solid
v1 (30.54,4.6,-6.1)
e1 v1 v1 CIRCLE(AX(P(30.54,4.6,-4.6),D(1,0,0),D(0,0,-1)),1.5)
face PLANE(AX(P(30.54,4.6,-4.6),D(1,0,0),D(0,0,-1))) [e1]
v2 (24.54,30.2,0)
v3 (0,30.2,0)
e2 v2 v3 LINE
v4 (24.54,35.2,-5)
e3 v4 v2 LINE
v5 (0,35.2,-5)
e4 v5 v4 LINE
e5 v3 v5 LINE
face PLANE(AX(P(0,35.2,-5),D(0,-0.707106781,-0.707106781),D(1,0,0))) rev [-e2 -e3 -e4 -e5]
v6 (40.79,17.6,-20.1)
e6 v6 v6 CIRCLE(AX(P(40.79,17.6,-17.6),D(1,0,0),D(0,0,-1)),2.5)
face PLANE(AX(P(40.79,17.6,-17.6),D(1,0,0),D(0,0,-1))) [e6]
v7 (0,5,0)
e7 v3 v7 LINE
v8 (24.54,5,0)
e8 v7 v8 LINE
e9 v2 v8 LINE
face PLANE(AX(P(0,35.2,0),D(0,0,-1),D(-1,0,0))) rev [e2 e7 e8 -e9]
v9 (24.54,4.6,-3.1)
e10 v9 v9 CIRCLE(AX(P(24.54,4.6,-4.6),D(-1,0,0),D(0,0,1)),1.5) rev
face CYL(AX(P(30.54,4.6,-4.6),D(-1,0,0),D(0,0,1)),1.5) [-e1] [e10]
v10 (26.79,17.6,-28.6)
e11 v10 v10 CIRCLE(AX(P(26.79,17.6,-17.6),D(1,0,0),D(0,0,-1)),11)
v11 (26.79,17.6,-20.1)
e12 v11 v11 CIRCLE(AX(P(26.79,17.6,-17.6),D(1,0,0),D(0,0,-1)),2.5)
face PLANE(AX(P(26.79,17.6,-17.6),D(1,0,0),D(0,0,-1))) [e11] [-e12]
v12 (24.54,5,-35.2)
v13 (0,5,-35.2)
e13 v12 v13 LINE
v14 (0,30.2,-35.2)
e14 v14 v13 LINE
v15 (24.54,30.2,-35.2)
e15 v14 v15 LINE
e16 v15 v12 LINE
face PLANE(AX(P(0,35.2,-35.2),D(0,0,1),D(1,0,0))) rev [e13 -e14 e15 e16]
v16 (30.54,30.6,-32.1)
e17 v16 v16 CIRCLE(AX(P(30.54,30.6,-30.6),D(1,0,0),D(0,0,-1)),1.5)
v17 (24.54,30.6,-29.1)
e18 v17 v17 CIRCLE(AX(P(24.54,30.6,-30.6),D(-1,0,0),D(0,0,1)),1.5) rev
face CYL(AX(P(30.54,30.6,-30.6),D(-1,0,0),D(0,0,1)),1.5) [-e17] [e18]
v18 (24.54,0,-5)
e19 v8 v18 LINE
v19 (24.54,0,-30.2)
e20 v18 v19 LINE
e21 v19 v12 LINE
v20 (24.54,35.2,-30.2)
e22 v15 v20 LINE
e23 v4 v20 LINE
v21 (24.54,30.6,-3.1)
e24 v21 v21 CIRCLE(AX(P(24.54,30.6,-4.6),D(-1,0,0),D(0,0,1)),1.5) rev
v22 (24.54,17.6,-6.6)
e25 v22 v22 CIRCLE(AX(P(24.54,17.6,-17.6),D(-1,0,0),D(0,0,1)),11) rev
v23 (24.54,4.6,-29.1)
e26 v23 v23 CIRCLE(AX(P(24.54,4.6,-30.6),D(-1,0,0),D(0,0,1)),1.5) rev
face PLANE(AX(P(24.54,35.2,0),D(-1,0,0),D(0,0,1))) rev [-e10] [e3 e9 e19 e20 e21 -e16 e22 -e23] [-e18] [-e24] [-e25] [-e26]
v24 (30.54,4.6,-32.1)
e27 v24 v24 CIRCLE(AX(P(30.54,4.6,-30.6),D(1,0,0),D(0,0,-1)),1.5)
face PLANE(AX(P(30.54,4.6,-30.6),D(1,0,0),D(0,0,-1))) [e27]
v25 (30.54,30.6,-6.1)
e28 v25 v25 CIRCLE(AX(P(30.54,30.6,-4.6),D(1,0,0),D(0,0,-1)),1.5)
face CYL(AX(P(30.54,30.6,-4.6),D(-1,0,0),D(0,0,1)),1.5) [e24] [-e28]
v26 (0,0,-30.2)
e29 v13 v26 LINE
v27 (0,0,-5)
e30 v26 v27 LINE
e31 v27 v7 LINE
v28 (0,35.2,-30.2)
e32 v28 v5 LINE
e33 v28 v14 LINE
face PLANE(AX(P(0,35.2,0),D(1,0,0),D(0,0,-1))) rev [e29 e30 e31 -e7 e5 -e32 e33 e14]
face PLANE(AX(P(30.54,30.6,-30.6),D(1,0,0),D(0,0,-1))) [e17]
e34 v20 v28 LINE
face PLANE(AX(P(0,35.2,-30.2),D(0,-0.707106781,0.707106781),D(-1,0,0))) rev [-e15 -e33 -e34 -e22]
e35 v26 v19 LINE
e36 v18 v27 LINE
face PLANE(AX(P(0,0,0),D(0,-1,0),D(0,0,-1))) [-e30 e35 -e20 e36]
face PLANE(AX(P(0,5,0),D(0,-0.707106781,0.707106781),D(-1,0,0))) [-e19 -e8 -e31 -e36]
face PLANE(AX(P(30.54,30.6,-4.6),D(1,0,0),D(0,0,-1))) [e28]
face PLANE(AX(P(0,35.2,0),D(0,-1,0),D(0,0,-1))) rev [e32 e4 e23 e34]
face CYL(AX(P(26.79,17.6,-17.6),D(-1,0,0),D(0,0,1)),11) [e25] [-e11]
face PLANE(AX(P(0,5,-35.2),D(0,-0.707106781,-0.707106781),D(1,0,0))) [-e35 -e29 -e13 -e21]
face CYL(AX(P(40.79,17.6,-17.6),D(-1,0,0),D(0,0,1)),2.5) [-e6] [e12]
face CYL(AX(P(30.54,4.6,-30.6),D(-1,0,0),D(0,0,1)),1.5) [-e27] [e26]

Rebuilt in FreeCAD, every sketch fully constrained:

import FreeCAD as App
import Part
import Sketcher

V = App.Vector
Q = App.Units.Quantity


def edges_at(feature, points):
    """Names of the edges that pass closest to the given points."""
    edges = feature.Shape.Edges
    near = lambda p: min(range(len(edges)), key=lambda i: edges[i].distToShape(Part.Vertex(*p))[0])
    return sorted({f"Edge{near(p) + 1}" for p in points})


def add_polygon(sketch, points):
    """Adds a closed chain of lines whose ends are joined by coincident constraints."""
    first, n = sketch.GeometryCount, len(points)
    for a, b in zip(points, points[1:] + points[:1]):
        sketch.addGeometry(Part.LineSegment(App.Vector(*a, 0), App.Vector(*b, 0)), False)
    for i in range(n):
        sketch.addConstraint(Sketcher.Constraint("Coincident", first + i, 2, first + (i + 1) % n, 1))

doc = App.newDocument("Part")
body = doc.addObject("PartDesign::Body", "Body")

# Sketch on XZ plane
sketch1 = body.newObject("Sketcher::SketchObject", "Sketch")
sketch1.AttachmentSupport = (doc.getObject("XZ_Plane"), [""])
sketch1.MapMode = "FlatFace"
add_polygon(sketch1, [(0, -35), (0, 0), (25, 0), (25, -35)])  # lines 0-3
sketch1.addConstraint([
    Sketcher.Constraint("Vertical", 0),
    Sketcher.Constraint("Horizontal", 1),
    Sketcher.Constraint("Vertical", 2),
    Sketcher.Constraint("Horizontal", 3),
    Sketcher.Constraint("Coincident", 0, 2, -1, 1),
    Sketcher.Constraint("DistanceY", 0, 1, 0, 2, Q("35.2 mm")),
    Sketcher.Constraint("DistanceX", 1, 1, 1, 2, Q("24.54 mm")),
])
pad1 = body.newObject("PartDesign::Pad", "Pad")
pad1.Profile = sketch1
pad1.Length = 35.2
pad1.Reversed = True

# Sketch on YZ plane
sketch2 = body.newObject("Sketcher::SketchObject", "Sketch001")
sketch2.AttachmentSupport = (doc.getObject("YZ_Plane"), [""])
sketch2.MapMode = "FlatFace"
sketch2.AttachmentOffset = App.Placement(V(0, 0, 24.54), App.Rotation())
sketch2.addGeometry(Part.Circle(V(18, -18, 0), V(0, 0, 1), 11), False)
sketch2.addConstraint([
    Sketcher.Constraint("Diameter", 0, Q("22 mm")),
    Sketcher.Constraint("DistanceX", -1, 1, 0, 3, Q("17.6 mm")),
    Sketcher.Constraint("DistanceY", 0, 3, -1, 1, Q("17.6 mm")),
])
pad2 = body.newObject("PartDesign::Pad", "Pad001")
pad2.Profile = sketch2
pad2.Length = 2.25

# Sketch on YZ plane
sketch3 = body.newObject("Sketcher::SketchObject", "Sketch002")
sketch3.AttachmentSupport = (doc.getObject("YZ_Plane"), [""])
sketch3.MapMode = "FlatFace"
sketch3.AttachmentOffset = App.Placement(V(0, 0, 26.79), App.Rotation())
sketch3.addGeometry(Part.Circle(V(17.6, -17.6, 0), V(0, 0, 1), 2.5), False)
sketch3.addConstraint([
    Sketcher.Constraint("Diameter", 0, Q("5 mm")),
    Sketcher.Constraint("DistanceX", -1, 1, 0, 3, Q("17.6 mm")),
    Sketcher.Constraint("DistanceY", 0, 3, -1, 1, Q("17.6 mm")),
])
pad3 = body.newObject("PartDesign::Pad", "Pad002")
pad3.Profile = sketch3
pad3.Length = 14
doc.recompute()

chamfer = body.newObject("PartDesign::Chamfer", "Chamfer")
chamfer.Base = (pad3, edges_at(pad3, [
    (12.27, 35.2, -35.2),
    (12.27, 0, -35.2),
    (12.27, 0, 0),
    (12.27, 35.2, 0),
]))
chamfer.Size = 5

# Sketch on YZ plane
sketch4 = body.newObject("Sketcher::SketchObject", "Sketch003")
sketch4.AttachmentSupport = (doc.getObject("YZ_Plane"), [""])
sketch4.MapMode = "FlatFace"
sketch4.AttachmentOffset = App.Placement(V(0, 0, 24.54), App.Rotation())
sketch4.addGeometry([
    Part.Circle(V(30.6, -30.6, 0), V(0, 0, 1), 1.5),
    Part.Circle(V(4.6, -30.6, 0), V(0, 0, 1), 1.5),
    Part.Circle(V(30.6, -4.6, 0), V(0, 0, 1), 1.5),
    Part.Circle(V(4.6, -4.6, 0), V(0, 0, 1), 1.5),
], False)
sketch4.addConstraint([
    Sketcher.Constraint("Equal", 0, 1),
    Sketcher.Constraint("Equal", 1, 2),
    Sketcher.Constraint("Equal", 2, 3),
    Sketcher.Constraint("Horizontal", 0, 3, 1, 3),
    Sketcher.Constraint("Horizontal", 2, 3, 3, 3),
    Sketcher.Constraint("Vertical", 0, 3, 2, 3),
    Sketcher.Constraint("Vertical", 1, 3, 3, 3),
    Sketcher.Constraint("Diameter", 0, Q("3 mm")),
    Sketcher.Constraint("DistanceX", 1, 3, 0, 3, Q("26 mm")),
    Sketcher.Constraint("DistanceY", 0, 3, 2, 3, Q("26 mm")),
    Sketcher.Constraint("DistanceX", -1, 1, 0, 3, Q("30.6 mm")),
    Sketcher.Constraint("DistanceY", 0, 3, -1, 1, Q("30.6 mm")),
])
pad4 = body.newObject("PartDesign::Pad", "Pad003")
pad4.Profile = sketch4
pad4.Length = 6

doc.recompute()
